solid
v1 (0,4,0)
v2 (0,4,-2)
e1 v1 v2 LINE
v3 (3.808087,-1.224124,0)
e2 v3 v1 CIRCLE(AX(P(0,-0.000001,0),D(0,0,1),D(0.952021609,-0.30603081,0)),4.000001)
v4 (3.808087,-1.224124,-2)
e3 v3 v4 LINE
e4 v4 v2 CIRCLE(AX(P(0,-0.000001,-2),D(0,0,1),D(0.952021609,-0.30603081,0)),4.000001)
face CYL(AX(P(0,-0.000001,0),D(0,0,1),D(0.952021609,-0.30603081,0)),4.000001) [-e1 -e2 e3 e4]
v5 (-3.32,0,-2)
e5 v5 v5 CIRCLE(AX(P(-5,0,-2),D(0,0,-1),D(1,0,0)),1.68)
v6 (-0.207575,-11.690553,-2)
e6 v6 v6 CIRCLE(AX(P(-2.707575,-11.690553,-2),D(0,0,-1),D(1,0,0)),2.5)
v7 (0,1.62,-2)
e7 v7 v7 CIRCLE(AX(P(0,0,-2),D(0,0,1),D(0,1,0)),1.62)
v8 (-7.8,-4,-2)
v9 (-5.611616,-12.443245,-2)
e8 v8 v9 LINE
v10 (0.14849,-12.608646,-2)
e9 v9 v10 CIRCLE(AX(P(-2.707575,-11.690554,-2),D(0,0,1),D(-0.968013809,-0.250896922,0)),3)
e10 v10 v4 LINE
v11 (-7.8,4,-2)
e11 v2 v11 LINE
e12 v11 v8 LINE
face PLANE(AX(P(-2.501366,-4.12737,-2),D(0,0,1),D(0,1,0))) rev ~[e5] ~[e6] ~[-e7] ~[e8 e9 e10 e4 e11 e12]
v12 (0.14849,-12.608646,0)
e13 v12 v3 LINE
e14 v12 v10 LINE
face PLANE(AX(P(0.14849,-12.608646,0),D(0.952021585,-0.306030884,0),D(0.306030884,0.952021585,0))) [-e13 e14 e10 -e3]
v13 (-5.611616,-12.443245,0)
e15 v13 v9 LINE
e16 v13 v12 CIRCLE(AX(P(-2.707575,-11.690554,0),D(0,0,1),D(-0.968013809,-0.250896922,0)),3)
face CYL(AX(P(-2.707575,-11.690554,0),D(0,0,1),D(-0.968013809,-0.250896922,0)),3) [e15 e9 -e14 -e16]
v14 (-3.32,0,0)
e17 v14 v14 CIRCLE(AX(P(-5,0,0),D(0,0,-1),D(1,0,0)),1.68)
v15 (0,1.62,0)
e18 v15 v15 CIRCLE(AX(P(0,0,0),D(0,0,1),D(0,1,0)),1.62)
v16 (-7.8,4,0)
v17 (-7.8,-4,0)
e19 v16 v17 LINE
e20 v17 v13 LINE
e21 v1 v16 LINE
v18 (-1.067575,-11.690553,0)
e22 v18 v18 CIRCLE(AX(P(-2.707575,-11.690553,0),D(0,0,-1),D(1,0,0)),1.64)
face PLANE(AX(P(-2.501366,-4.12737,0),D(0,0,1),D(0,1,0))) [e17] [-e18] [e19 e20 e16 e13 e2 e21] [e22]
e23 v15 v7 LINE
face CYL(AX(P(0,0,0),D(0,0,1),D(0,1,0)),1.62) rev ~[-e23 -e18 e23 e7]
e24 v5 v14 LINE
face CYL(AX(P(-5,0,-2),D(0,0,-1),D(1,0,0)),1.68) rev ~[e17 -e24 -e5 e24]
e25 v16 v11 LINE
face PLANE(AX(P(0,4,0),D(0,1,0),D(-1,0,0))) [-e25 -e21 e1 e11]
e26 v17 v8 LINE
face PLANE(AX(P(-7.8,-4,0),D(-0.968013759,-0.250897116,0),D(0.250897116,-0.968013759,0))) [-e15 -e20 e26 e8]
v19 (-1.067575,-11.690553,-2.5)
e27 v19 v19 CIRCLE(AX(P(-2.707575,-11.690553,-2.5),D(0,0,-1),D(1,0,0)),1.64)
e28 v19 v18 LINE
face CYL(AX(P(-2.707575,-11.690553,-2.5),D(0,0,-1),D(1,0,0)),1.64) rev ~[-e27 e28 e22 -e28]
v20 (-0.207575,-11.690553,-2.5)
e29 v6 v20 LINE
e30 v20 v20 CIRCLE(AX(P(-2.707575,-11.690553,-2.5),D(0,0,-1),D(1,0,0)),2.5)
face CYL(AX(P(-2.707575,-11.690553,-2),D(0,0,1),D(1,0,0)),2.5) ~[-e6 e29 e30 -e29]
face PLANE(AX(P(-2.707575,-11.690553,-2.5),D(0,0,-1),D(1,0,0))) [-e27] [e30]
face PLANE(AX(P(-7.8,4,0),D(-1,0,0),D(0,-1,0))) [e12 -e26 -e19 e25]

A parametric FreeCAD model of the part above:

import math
import FreeCAD as App
import Part
import Sketcher
from FreeCAD import Vector
Q = App.Units.Quantity

doc = App.newDocument("Part")
params = doc.addObject("Spreadsheet::Sheet", "Params")
for row, (alias, value) in enumerate([
    ("sketch1_radius", "3 mm"),
    ("sketch1_radius2", "4.000001 mm"),
    ("sketch1_diameter", "3.24 mm"),
    ("sketch1_height", "8 mm"),
    ("sketch1_width", "7.8 mm"),
    ("pad1_length", "2 mm"),
    ("sketch2_diameter", "3.36 mm"),
    ("pocket1_length", "2 mm"),
    ("sketch3_diameter", "5 mm"),
    ("pad2_length", "0.5 mm"),
    ("sketch4_diameter", "3.28 mm"),
    ("pocket2_length", "2.5 mm"),
], start=1):
    params.set(f"A{row}", alias)
    params.set(f"B{row}", "=" + value)
    params.setAlias(f"B{row}", alias)

body = doc.addObject("PartDesign::Body", "Body")

# Sketch on XY plane
sketch1 = body.newObject("Sketcher::SketchObject", "Sketch")
sketch1.AttachmentSupport = (doc.getObject("XY_Plane"), [""])
sketch1.MapMode = "FlatFace"
sketch1.addGeometry([
    Part.ArcOfCircle(Part.Circle(Vector(-2.707575, -11.690554, 0), Vector(0, 0, 1), 3), math.radians(-165.469406), math.radians(-17.820178)),  # 0
    Part.LineSegment(Vector(0.14849, -12.608646, 0), Vector(3.808087, -1.224124, 0)),  # 1
    Part.ArcOfCircle(Part.Circle(Vector(0, -0.000001, 0), Vector(0, 0, 1), 4.000001), math.radians(-17.820191), math.radians(90)),  # 2
    Part.LineSegment(Vector(0, 4, 0), Vector(-7.8, 4, 0)),  # 3
    Part.LineSegment(Vector(-7.8, 4, 0), Vector(-7.8, -4, 0)),  # 4
    Part.LineSegment(Vector(-7.8, -4, 0), Vector(-5.611616, -12.443245, 0)),  # 5
    Part.Circle(Vector(0, 0, 0), Vector(0, 0, 1), 1.62),  # 6
], False)
sketch1.addConstraint([
    Sketcher.Constraint("Tangent", 0, 2, 1, 1),
    Sketcher.Constraint("Tangent", 1, 2, 2, 1),
    Sketcher.Constraint("Tangent", 2, 2, 3, 1),
    Sketcher.Constraint("Coincident", 3, 2, 4, 1),
    Sketcher.Constraint("Coincident", 4, 2, 5, 1),
    Sketcher.Constraint("Tangent", 5, 2, 0, 1),
    Sketcher.Constraint("Horizontal", 3),
    Sketcher.Constraint("Vertical", 4),
    Sketcher.Constraint("Coincident", 2, 3, -1, 1),
    Sketcher.Constraint("Coincident", 6, 3, -1, 1),
    Sketcher.Constraint("Radius", 0, Q("3 mm")),
    Sketcher.Constraint("Radius", 2, Q("4.000001 mm")),
    Sketcher.Constraint("Diameter", 6, Q("3.24 mm")),
    Sketcher.Constraint("DistanceY", 4, 2, 4, 1, Q("8 mm")),
    Sketcher.Constraint("DistanceX", 3, 2, 3, 1, Q("7.8 mm")),
    Sketcher.Constraint("DistanceY", 0, 2, 5, 2, Q("0.165401 mm")),
    Sketcher.Constraint("Distance", 1, Q("11.95826 mm")),
])
sketch1.setExpression("Constraints[10]", "Params.sketch1_radius")
sketch1.setExpression("Constraints[11]", "Params.sketch1_radius2")
sketch1.setExpression("Constraints[12]", "Params.sketch1_diameter")
sketch1.setExpression("Constraints[13]", "Params.sketch1_height")
sketch1.setExpression("Constraints[14]", "Params.sketch1_width")
pad1 = body.newObject("PartDesign::Pad", "Pad")
pad1.Profile = sketch1
pad1.setExpression("Length", "Params.pad1_length")
pad1.Reversed = True

# Sketch on XY plane
sketch2 = body.newObject("Sketcher::SketchObject", "Sketch001")
sketch2.AttachmentSupport = (doc.getObject("XY_Plane"), [""])
sketch2.MapMode = "FlatFace"
sketch2.AttachmentOffset = App.Placement(Vector(0, 0, -2), App.Rotation())
sketch2.addGeometry(Part.Circle(Vector(-5, 0, 0), Vector(0, 0, 1), 1.68), False)
sketch2.addConstraint([
    Sketcher.Constraint("PointOnObject", 0, 3, -1),
    Sketcher.Constraint("Diameter", 0, Q("3.36 mm")),
    Sketcher.Constraint("DistanceX", 0, 3, -1, 1, Q("5 mm")),
])
sketch2.setExpression("Constraints[1]", "Params.sketch2_diameter")
pocket1 = body.newObject("PartDesign::Pocket", "Pocket")
pocket1.Profile = sketch2
pocket1.setExpression("Length", "Params.pocket1_length")
pocket1.Reversed = True

# Sketch on XY plane
sketch3 = body.newObject("Sketcher::SketchObject", "Sketch002")
sketch3.AttachmentSupport = (doc.getObject("XY_Plane"), [""])
sketch3.MapMode = "FlatFace"
sketch3.AttachmentOffset = App.Placement(Vector(0, 0, -2), App.Rotation())
sketch3.addGeometry(Part.Circle(Vector(-2.707575, -11.690553, 0), Vector(0, 0, 1), 2.5), False)
sketch3.addConstraint([
    Sketcher.Constraint("Diameter", 0, Q("5 mm")),
    Sketcher.Constraint("DistanceX", 0, 3, -1, 1, Q("2.707575 mm")),
    Sketcher.Constraint("DistanceY", 0, 3, -1, 1, Q("11.690553 mm")),
])
sketch3.setExpression("Constraints[0]", "Params.sketch3_diameter")
pad2 = body.newObject("PartDesign::Pad", "Pad001")
pad2.Profile = sketch3
pad2.setExpression("Length", "Params.pad2_length")
pad2.Reversed = True

# Sketch on XY plane
sketch4 = body.newObject("Sketcher::SketchObject", "Sketch003")
sketch4.AttachmentSupport = (doc.getObject("XY_Plane"), [""])
sketch4.MapMode = "FlatFace"
sketch4.AttachmentOffset = App.Placement(Vector(0, 0, -2.5), App.Rotation())
sketch4.addGeometry(Part.Circle(Vector(-2.707575, -11.690553, 0), Vector(0, 0, 1), 1.64), False)
sketch4.addConstraint([
    Sketcher.Constraint("Diameter", 0, Q("3.28 mm")),
    Sketcher.Constraint("DistanceX", 0, 3, -1, 1, Q("2.707575 mm")),
    Sketcher.Constraint("DistanceY", 0, 3, -1, 1, Q("11.690553 mm")),
])
sketch4.setExpression("Constraints[0]", "Params.sketch4_diameter")
pocket2 = body.newObject("PartDesign::Pocket", "Pocket001")
pocket2.Profile = sketch4
pocket2.setExpression("Length", "Params.pocket2_length")
pocket2.Reversed = True

doc.recompute()
